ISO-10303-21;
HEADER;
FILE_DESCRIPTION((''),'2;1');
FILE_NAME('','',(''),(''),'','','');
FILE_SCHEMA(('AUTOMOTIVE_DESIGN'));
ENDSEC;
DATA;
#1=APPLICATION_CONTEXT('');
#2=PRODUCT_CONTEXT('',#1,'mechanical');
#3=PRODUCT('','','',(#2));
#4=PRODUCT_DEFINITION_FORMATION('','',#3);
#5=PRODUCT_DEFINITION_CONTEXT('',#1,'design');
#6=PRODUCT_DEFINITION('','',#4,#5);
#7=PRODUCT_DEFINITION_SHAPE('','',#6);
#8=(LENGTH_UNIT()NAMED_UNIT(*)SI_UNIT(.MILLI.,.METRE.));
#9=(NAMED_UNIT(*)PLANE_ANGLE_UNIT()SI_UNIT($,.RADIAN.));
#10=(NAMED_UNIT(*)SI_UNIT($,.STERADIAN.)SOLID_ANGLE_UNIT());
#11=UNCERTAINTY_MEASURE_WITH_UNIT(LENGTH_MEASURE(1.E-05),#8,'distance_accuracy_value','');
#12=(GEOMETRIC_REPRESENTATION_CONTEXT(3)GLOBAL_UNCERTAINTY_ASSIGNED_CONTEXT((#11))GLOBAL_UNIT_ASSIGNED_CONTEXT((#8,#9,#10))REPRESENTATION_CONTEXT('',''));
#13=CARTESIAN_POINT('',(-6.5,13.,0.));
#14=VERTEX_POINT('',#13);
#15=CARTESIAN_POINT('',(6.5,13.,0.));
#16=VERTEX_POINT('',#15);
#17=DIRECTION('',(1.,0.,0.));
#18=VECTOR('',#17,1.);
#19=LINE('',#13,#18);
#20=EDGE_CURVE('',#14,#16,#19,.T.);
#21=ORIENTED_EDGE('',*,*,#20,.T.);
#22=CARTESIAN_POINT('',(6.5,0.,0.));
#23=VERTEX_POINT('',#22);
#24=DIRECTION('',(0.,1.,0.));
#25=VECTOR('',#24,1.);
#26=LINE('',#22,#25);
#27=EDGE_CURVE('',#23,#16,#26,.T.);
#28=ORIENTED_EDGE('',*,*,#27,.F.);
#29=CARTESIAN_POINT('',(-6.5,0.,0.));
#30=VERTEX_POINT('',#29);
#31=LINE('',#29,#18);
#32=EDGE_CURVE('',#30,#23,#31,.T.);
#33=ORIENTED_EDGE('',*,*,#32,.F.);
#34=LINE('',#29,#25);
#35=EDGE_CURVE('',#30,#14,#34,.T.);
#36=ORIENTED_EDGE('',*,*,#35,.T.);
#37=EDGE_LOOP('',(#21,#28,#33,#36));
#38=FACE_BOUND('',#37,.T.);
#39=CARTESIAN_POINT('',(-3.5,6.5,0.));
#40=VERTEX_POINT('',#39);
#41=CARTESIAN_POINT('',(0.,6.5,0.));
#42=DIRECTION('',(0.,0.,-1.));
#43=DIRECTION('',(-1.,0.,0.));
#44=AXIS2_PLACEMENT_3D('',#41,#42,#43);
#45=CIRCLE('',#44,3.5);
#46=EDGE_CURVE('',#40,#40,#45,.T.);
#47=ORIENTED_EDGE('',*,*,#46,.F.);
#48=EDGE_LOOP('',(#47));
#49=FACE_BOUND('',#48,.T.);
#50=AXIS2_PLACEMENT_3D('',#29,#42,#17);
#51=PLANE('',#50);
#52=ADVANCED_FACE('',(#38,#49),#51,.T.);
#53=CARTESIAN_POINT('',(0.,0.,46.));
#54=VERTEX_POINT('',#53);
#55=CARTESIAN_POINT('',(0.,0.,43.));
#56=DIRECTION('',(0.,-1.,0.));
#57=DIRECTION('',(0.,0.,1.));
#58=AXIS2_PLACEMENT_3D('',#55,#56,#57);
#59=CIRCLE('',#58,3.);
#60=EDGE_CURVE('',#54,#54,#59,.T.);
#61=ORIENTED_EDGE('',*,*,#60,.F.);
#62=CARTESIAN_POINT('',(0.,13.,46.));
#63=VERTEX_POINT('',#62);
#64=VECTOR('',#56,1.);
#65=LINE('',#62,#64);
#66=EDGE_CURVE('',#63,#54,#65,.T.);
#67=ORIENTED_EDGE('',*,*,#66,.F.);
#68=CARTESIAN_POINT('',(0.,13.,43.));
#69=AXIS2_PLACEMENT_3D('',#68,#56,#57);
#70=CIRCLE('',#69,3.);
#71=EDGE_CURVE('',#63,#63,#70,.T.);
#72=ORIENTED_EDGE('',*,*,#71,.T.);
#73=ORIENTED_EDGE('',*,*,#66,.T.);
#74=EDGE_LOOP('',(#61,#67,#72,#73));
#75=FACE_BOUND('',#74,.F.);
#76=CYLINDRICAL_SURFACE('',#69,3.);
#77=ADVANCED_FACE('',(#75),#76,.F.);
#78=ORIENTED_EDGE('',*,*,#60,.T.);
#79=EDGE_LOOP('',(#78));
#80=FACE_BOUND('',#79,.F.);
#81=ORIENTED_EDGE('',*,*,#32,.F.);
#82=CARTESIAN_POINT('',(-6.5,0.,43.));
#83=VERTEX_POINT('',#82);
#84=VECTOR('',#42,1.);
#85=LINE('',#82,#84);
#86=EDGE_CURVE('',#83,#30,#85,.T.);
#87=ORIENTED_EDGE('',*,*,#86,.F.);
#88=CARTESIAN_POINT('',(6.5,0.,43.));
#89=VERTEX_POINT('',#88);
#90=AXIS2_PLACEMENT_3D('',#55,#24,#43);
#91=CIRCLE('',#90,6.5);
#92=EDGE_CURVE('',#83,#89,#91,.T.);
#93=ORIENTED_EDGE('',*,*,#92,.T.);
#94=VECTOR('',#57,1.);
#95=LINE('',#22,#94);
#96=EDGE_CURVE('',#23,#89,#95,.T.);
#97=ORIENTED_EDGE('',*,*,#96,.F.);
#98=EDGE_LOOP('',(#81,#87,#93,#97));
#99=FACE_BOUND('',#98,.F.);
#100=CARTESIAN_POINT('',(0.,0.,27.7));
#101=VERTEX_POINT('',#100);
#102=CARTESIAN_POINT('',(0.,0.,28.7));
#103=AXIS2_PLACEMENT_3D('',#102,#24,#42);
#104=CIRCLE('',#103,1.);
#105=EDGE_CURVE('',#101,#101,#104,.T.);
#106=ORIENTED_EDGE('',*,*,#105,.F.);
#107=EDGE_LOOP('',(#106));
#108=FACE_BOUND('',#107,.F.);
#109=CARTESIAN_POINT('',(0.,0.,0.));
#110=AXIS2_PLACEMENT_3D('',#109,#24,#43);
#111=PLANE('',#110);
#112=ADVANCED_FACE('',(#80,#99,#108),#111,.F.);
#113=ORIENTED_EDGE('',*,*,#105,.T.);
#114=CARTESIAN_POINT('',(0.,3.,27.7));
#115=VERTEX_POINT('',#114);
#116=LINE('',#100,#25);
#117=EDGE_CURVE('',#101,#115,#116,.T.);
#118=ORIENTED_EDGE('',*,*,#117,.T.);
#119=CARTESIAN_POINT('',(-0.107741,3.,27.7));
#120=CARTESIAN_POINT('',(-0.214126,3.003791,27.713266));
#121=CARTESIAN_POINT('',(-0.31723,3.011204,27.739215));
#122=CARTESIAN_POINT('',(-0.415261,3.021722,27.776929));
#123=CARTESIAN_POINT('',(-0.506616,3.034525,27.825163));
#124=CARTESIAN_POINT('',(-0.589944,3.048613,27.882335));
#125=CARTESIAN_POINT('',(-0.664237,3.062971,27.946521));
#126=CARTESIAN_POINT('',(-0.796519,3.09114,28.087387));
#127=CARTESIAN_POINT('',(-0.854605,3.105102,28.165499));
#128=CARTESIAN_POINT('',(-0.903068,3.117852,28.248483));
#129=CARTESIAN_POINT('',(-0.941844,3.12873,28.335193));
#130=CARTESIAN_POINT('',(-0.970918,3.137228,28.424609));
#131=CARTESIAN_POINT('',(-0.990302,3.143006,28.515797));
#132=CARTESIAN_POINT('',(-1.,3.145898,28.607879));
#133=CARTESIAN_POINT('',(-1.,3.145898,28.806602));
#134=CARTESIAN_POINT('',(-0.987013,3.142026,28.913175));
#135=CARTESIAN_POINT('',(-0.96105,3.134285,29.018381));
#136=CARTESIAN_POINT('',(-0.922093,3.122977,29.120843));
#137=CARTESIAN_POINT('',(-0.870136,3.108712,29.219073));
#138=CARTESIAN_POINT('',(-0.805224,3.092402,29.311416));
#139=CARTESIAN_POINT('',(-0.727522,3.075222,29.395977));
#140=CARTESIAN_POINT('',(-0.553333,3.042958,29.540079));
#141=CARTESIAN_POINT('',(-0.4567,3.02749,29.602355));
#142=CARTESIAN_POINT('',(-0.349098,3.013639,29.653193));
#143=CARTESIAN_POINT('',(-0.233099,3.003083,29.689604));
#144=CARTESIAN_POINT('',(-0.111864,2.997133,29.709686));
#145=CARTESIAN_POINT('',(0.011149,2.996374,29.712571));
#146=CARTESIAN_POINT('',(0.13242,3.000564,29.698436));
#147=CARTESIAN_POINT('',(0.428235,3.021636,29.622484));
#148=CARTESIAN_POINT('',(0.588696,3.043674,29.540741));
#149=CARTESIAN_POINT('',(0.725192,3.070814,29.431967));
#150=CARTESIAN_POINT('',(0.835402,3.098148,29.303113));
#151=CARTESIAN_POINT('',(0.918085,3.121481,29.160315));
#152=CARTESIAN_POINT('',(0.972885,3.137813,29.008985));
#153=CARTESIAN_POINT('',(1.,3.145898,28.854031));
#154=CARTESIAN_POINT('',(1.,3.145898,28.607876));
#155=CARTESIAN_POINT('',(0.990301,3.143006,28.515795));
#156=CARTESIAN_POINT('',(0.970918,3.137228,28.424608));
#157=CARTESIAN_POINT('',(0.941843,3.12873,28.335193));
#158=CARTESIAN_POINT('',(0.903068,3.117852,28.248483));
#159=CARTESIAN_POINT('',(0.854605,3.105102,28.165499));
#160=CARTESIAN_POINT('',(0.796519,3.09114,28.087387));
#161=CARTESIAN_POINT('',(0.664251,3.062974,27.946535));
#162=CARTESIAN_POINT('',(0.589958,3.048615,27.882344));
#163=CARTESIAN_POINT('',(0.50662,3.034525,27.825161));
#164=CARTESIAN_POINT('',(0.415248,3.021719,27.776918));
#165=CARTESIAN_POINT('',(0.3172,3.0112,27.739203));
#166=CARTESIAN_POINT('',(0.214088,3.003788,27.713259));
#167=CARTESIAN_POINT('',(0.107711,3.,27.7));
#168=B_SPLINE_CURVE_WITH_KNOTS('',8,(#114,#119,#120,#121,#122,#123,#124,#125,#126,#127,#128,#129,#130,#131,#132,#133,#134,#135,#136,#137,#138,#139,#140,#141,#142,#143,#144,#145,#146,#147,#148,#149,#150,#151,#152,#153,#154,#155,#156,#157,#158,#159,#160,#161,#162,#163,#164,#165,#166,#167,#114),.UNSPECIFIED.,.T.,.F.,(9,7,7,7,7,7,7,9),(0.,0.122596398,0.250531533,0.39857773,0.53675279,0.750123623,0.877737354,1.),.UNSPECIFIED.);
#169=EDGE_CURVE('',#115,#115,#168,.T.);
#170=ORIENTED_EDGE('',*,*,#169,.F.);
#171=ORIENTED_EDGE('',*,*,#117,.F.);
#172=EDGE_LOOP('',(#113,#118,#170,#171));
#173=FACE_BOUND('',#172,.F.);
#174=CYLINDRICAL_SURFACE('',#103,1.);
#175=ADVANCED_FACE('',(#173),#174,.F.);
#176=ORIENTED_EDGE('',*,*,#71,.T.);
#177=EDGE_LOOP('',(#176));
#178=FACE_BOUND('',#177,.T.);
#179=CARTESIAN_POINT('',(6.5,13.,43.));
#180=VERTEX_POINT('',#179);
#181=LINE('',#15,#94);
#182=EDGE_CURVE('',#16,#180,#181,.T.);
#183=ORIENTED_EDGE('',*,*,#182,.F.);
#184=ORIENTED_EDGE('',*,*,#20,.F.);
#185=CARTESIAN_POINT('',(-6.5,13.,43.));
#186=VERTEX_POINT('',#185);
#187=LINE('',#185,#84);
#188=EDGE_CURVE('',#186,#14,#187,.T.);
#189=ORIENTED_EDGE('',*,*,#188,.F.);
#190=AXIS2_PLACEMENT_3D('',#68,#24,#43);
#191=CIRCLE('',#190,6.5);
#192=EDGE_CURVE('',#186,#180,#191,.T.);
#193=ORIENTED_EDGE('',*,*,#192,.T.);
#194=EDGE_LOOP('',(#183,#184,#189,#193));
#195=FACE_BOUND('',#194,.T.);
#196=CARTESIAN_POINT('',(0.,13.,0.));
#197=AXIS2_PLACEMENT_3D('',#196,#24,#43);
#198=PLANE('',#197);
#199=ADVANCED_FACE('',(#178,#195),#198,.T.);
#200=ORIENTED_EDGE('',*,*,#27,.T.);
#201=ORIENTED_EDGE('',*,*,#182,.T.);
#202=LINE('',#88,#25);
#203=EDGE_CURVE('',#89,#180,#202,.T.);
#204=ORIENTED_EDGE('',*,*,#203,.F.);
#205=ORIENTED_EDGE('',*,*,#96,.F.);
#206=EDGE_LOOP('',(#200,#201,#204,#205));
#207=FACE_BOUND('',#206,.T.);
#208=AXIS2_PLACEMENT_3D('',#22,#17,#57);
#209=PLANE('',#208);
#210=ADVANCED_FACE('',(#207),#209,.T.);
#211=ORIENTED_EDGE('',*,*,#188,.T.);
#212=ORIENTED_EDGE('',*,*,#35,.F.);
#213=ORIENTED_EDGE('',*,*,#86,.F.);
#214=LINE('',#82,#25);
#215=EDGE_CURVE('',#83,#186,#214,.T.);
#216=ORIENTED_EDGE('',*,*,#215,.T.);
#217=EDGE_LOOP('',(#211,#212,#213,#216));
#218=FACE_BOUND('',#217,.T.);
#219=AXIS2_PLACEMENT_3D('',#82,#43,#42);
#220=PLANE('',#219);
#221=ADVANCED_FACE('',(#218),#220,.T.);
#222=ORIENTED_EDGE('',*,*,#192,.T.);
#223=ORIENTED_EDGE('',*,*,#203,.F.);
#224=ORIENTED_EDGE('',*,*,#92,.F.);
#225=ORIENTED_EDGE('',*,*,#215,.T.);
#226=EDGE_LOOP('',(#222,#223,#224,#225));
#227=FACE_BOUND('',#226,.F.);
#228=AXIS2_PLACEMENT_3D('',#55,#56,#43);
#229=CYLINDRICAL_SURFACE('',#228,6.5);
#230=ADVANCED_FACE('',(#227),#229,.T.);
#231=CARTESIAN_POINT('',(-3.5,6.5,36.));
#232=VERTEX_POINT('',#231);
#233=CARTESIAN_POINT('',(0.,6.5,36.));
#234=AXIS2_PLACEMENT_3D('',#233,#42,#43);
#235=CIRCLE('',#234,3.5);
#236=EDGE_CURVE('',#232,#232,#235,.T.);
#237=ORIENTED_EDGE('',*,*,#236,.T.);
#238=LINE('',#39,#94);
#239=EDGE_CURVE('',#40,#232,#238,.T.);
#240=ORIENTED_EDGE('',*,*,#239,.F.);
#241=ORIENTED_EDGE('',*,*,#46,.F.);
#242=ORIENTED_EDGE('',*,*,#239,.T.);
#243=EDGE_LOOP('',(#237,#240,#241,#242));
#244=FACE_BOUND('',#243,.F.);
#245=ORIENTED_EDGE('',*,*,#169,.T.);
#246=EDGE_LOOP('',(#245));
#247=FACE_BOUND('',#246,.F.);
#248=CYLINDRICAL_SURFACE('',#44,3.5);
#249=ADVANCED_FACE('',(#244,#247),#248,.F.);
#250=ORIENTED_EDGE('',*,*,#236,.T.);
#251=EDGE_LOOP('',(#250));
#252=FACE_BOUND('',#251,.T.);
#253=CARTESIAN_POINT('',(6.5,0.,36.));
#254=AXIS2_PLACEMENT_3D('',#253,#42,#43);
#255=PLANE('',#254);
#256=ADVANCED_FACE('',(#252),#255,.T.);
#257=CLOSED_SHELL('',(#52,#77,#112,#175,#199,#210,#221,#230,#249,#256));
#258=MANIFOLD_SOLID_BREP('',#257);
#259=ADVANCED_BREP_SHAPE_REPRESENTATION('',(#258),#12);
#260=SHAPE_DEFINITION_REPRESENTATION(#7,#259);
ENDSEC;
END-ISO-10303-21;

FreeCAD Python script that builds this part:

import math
import FreeCAD as App
import Part
import Sketcher

V = App.Vector

doc = App.newDocument("Part")
body = doc.addObject("PartDesign::Body", "Body")

# Sketch on XZ plane
sketch1 = doc.addObject("Sketcher::SketchObject", "Sketch")
body.addObject(sketch1)
sketch1.AttachmentSupport = (doc.XZ_Plane, [""])
sketch1.MapMode = "FlatFace"
sketch1.addGeometry([
    Part.LineSegment(V(6, 0, 0), V(-6, 0, 0)),
    Part.LineSegment(V(-6, 0, 0), V(-6, 43, 0)),
    Part.ArcOfCircle(Part.Circle(V(0, 43, 0), V(0, 0, 1), 6), math.radians(0), math.radians(180)),
    Part.LineSegment(V(6, 43, 0), V(6, 0, 0)),
], False)
sketch1.addConstraint([
    Sketcher.Constraint("Coincident", 0, 2, 1, 1),
    Sketcher.Constraint("Tangent", 1, 2, 2, 2),
    Sketcher.Constraint("Tangent", 2, 1, 3, 1),
    Sketcher.Constraint("Coincident", 3, 2, 0, 1),
    Sketcher.Constraint("Horizontal", 0),
    Sketcher.Constraint("Vertical", 1),
    Sketcher.Constraint("Vertical", 3),
    Sketcher.Constraint("Symmetric", 0, 2, 3, 2, -1, 1),
    Sketcher.Constraint("Radius", 2, 6.5),
    Sketcher.Constraint("DistanceY", 1, 1, 1, 2, 43.0),
])
pad1 = doc.addObject("PartDesign::Pad", "Pad")
body.addObject(pad1)
pad1.Profile = sketch1
pad1.Length = 13
pad1.Reversed = True

# Sketch on XZ plane
sketch2 = doc.addObject("Sketcher::SketchObject", "Sketch001")
body.addObject(sketch2)
sketch2.AttachmentSupport = (doc.XZ_Plane, [""])
sketch2.MapMode = "FlatFace"
sketch2.AttachmentOffset = App.Placement(V(0, 0, -13), App.Rotation())
sketch2.addGeometry(Part.Circle(V(0, 43, 0), V(0, 0, 1), 3), False)
sketch2.addConstraint([
    Sketcher.Constraint("PointOnObject", 0, 3, -2),
    Sketcher.Constraint("Diameter", 0, 6.0),
    Sketcher.Constraint("DistanceY", -1, 1, 0, 3, 43.0),
])
doc.recompute()
hole = doc.addObject("PartDesign::Hole", "Hole")
body.addObject(hole)
hole.Profile = sketch2
hole.ThreadType = "None"
hole.Diameter = 6
hole.DepthType = "Dimension"
hole.Depth = 13
hole.DrillPoint = "Flat"
hole.Reversed = True

# Sketch on XY plane
sketch3 = doc.addObject("Sketcher::SketchObject", "Sketch002")
body.addObject(sketch3)
sketch3.AttachmentSupport = (doc.XY_Plane, [""])
sketch3.MapMode = "FlatFace"
sketch3.addGeometry(Part.Circle(V(0, 6.5, 0), V(0, 0, 1), 3.5), False)
sketch3.addConstraint([
    Sketcher.Constraint("PointOnObject", 0, 3, -2),
    Sketcher.Constraint("Diameter", 0, 7.0),
    Sketcher.Constraint("DistanceY", -1, 1, 0, 3, 6.5),
])
pocket1 = doc.addObject("PartDesign::Pocket", "Pocket")
body.addObject(pocket1)
pocket1.Profile = sketch3
pocket1.Length = 36
pocket1.Reversed = True

# Sketch on XZ plane
sketch4 = doc.addObject("Sketcher::SketchObject", "Sketch003")
body.addObject(sketch4)
sketch4.AttachmentSupport = (doc.XZ_Plane, [""])
sketch4.MapMode = "FlatFace"
sketch4.addGeometry(Part.Circle(V(0, 28.7, 0), V(0, 0, 1), 1), False)
sketch4.addConstraint([
    Sketcher.Constraint("PointOnObject", 0, 3, -2),
    Sketcher.Constraint("Diameter", 0, 2.0),
    Sketcher.Constraint("DistanceY", -1, 1, 0, 3, 28.7),
])
doc.recompute()
hole2 = doc.addObject("PartDesign::Hole", "Hole001")
body.addObject(hole2)
hole2.Profile = sketch4
hole2.ThreadType = "None"
hole2.Diameter = 2
hole2.DepthType = "Dimension"
hole2.Depth = 4
hole2.DrillPoint = "Flat"

doc.recompute()
